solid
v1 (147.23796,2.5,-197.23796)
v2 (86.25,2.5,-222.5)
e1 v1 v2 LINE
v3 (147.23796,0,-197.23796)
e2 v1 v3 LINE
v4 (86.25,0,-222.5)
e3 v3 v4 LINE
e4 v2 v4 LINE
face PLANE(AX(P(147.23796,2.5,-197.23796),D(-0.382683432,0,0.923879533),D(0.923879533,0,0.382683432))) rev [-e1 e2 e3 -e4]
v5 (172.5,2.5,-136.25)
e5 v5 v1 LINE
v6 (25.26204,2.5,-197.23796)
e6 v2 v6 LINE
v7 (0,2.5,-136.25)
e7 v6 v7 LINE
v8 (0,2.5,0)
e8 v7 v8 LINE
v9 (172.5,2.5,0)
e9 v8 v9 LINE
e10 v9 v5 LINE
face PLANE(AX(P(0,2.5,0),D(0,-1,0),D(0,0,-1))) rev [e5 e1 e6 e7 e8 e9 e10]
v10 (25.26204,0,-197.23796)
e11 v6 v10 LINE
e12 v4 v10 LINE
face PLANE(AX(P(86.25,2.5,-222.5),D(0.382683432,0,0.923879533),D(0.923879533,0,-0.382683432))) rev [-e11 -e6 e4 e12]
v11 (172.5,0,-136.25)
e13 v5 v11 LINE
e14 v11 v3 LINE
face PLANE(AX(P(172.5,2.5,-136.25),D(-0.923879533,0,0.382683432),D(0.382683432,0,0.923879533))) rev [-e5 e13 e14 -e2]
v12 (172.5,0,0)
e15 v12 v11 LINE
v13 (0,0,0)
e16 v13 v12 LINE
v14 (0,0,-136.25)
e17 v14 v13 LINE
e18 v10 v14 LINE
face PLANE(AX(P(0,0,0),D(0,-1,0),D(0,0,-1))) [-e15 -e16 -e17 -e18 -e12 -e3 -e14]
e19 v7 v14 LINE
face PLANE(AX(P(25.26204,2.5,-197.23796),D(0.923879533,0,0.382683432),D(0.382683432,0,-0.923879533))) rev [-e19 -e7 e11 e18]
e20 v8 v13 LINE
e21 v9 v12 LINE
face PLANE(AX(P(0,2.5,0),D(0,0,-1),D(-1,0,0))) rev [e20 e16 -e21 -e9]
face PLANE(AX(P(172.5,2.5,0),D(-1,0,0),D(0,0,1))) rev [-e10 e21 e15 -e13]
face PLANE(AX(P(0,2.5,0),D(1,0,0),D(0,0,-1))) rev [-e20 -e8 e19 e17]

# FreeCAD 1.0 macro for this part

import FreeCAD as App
import Part
import Sketcher

V = App.Vector
Q = App.Units.Quantity


def add_polygon(sketch, points):
    """Adds a closed chain of lines whose ends are joined by coincident constraints."""
    first, n = sketch.GeometryCount, len(points)
    for a, b in zip(points, points[1:] + points[:1]):
        sketch.addGeometry(Part.LineSegment(App.Vector(*a, 0), App.Vector(*b, 0)), False)
    for i in range(n):
        sketch.addConstraint(Sketcher.Constraint("Coincident", first + i, 2, first + (i + 1) % n, 1))

doc = App.newDocument("Part")
params = doc.addObject("Spreadsheet::Sheet", "Params")
for row, (alias, value) in enumerate([
    ("sketch1_width", "172.5 mm"),
    ("sketch1_height", "136.25 mm"),
    ("pad1_length", "2.5 mm"),
], start=1):
    params.set(f"A{row}", alias)
    params.set(f"B{row}", "=" + value)
    params.setAlias(f"B{row}", alias)

body = doc.addObject("PartDesign::Body", "Body")

# Sketch on XZ plane
sketch1 = body.newObject("Sketcher::SketchObject", "Sketch")
sketch1.AttachmentSupport = (doc.getObject("XZ_Plane"), [""])
sketch1.MapMode = "FlatFace"
add_polygon(sketch1, [(0, 0), (172.5, 0), (172.5, -136.25), (147.23796, -197.23796), (86.25, -222.5), (25.26204, -197.23796), (0, -136.25)])  # lines 0-6
sketch1.addConstraint(Sketcher.Constraint("Horizontal", 0))
sketch1.addConstraint(Sketcher.Constraint("Vertical", 1))
sketch1.addConstraint(Sketcher.Constraint("Vertical", 6))
sketch1.addConstraint(Sketcher.Constraint("Coincident", 6, 2, -1, 1))
sketch1.addConstraint(Sketcher.Constraint("Perpendicular", 2, 4))
sketch1.addConstraint(Sketcher.Constraint("Perpendicular", 3, 5))
sketch1.addConstraint(Sketcher.Constraint("Horizontal", 2, 2, 4, 2))
sketch1.addConstraint(Sketcher.Constraint("Horizontal", 1, 2, 5, 2))
sketch1.addConstraint(Sketcher.Constraint("Equal", 2, 3))
sketch1.addConstraint(Sketcher.Constraint("Equal", 3, 4))
sketch1.addConstraint(Sketcher.Constraint("DistanceX", 0, 1, 0, 2, Q("172.5 mm")))
sketch1.addConstraint(Sketcher.Constraint("Angle", 2, Q("-112.5 deg")))
sketch1.addConstraint(Sketcher.Constraint("DistanceY", 1, 2, 1, 1, Q("136.25 mm")))
sketch1.setExpression("Constraints[17]", "Params.sketch1_width")
sketch1.setExpression("Constraints[19]", "Params.sketch1_height")
pad1 = body.newObject("PartDesign::Pad", "Pad")
pad1.Profile = sketch1
pad1.setExpression("Length", "Params.pad1_length")
pad1.Reversed = True

doc.recompute()
